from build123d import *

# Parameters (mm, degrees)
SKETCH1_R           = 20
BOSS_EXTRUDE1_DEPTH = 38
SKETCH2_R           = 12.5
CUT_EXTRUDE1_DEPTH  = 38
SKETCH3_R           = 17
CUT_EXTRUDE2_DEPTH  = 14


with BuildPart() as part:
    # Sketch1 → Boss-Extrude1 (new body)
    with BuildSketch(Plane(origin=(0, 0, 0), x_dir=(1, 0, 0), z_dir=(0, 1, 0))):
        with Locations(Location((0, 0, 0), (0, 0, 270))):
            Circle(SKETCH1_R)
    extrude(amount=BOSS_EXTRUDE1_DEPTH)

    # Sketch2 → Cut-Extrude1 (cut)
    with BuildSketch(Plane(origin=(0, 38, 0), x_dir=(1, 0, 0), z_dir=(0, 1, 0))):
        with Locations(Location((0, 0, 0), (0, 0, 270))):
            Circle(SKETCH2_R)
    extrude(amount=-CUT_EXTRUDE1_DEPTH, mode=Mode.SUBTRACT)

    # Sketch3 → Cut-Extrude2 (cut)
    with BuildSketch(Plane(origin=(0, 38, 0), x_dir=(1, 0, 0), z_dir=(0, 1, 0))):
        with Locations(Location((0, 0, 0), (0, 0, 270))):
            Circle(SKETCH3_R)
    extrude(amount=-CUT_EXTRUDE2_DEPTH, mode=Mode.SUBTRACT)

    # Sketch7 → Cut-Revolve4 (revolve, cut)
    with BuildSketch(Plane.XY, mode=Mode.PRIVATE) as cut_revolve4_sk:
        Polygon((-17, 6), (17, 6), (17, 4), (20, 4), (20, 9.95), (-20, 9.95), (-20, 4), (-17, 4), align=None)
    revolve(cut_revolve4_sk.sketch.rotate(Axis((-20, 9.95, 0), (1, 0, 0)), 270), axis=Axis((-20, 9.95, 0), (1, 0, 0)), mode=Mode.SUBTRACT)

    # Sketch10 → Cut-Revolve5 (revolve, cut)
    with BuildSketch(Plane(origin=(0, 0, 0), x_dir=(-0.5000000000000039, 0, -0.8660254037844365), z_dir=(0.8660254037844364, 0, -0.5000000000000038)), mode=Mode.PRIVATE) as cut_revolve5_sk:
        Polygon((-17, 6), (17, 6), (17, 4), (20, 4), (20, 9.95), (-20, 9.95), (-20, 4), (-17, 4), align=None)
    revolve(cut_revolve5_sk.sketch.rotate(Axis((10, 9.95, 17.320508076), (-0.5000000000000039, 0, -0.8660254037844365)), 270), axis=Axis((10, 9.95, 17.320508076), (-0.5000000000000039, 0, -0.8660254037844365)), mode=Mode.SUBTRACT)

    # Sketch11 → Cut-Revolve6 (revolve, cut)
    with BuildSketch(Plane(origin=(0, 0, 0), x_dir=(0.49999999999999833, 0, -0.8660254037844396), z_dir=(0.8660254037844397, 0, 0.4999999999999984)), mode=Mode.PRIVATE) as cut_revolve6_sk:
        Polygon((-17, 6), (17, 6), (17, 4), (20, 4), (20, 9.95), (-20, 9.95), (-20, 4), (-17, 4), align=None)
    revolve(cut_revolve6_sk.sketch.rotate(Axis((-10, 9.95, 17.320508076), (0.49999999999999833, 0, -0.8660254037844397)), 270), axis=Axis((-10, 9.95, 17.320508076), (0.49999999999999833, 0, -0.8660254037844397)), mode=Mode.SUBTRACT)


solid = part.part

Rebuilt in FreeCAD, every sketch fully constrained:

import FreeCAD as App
import Part
import Sketcher
from FreeCAD import Vector

doc = App.newDocument("Part")
params = doc.addObject("Spreadsheet::Sheet", "Params")
for row, (alias, value) in enumerate([
    ("sketch1_diameter", "40 mm"),
    ("pad1_length", "38 mm"),
    ("sketch2_diameter", "25 mm"),
    ("pocket1_length", "38 mm"),
    ("sketch3_diameter", "34 mm"),
    ("pocket2_length", "14 mm"),
    ("sketch4_width", "34 mm"),
    ("sketch4_width2", "3 mm"),
    ("sketch4_height", "2 mm"),
    ("sketch4_height2", "5.95 mm"),
    ("groove_angle", "360 deg"),
    ("sketch5_width", "34 mm"),
    ("sketch5_width2", "3 mm"),
    ("sketch5_height", "2 mm"),
    ("sketch5_height2", "5.95 mm"),
    ("groove2_angle", "360 deg"),
    ("sketch6_width", "34 mm"),
    ("sketch6_width2", "3 mm"),
    ("sketch6_height", "2 mm"),
    ("sketch6_height2", "5.95 mm"),
    ("groove3_angle", "360 deg"),
], start=1):
    params.set(f"A{row}", alias)
    params.set(f"B{row}", "=" + value)
    params.setAlias(f"B{row}", alias)

body = doc.addObject("PartDesign::Body", "Body")

# Sketch on XZ plane
sketch1 = body.newObject("Sketcher::SketchObject", "Sketch")
sketch1.AttachmentSupport = (doc.getObject("XZ_Plane"), [""])
sketch1.MapMode = "FlatFace"
sketch1.addGeometry(Part.Circle(Vector(0, 0, 0), Vector(0, 0, 1), 20), False)
sketch1.addConstraint([
    Sketcher.Constraint("Coincident", 0, 3, -1, 1),
    Sketcher.Constraint("Diameter", 0, 40.0),
])
sketch1.setExpression("Constraints[1]", "Params.sketch1_diameter")
pad1 = body.newObject("PartDesign::Pad", "Pad")
pad1.Profile = sketch1
pad1.setExpression("Length", "Params.pad1_length")
pad1.Reversed = True

# Sketch on XZ plane
sketch2 = body.newObject("Sketcher::SketchObject", "Sketch001")
sketch2.AttachmentSupport = (doc.getObject("XZ_Plane"), [""])
sketch2.MapMode = "FlatFace"
sketch2.AttachmentOffset = App.Placement(Vector(0, 0, -38), App.Rotation())
sketch2.addGeometry(Part.Circle(Vector(0, 0, 0), Vector(0, 0, 1), 12), False)
sketch2.addConstraint([
    Sketcher.Constraint("Coincident", 0, 3, -1, 1),
    Sketcher.Constraint("Diameter", 0, 25.0),
])
sketch2.setExpression("Constraints[1]", "Params.sketch2_diameter")
pocket1 = body.newObject("PartDesign::Pocket", "Pocket")
pocket1.Profile = sketch2
pocket1.setExpression("Length", "Params.pocket1_length")
pocket1.Reversed = True

# Sketch on XZ plane
sketch3 = body.newObject("Sketcher::SketchObject", "Sketch002")
sketch3.AttachmentSupport = (doc.getObject("XZ_Plane"), [""])
sketch3.MapMode = "FlatFace"
sketch3.AttachmentOffset = App.Placement(Vector(0, 0, -38), App.Rotation())
sketch3.addGeometry(Part.Circle(Vector(0, 0, 0), Vector(0, 0, 1), 17), False)
sketch3.addConstraint([
    Sketcher.Constraint("Coincident", 0, 3, -1, 1),
    Sketcher.Constraint("Diameter", 0, 34.0),
])
sketch3.setExpression("Constraints[1]", "Params.sketch3_diameter")
pocket2 = body.newObject("PartDesign::Pocket", "Pocket001")
pocket2.Profile = sketch3
pocket2.setExpression("Length", "Params.pocket2_length")
pocket2.Reversed = True

# Sketch on XY plane
sketch4 = body.newObject("Sketcher::SketchObject", "Sketch003")
sketch4.AttachmentSupport = (doc.getObject("XY_Plane"), [""])
sketch4.MapMode = "FlatFace"
sketch4.addGeometry([
    Part.LineSegment(Vector(-17, 6, 0), Vector(17, 6, 0)),  # 0
    Part.LineSegment(Vector(17, 6, 0), Vector(17, 4, 0)),  # 1
    Part.LineSegment(Vector(17, 4, 0), Vector(20, 4, 0)),  # 2
    Part.LineSegment(Vector(20, 4, 0), Vector(20, 9.9, 0)),  # 3
    Part.LineSegment(Vector(20, 9.9, 0), Vector(-20, 9.9, 0)),  # 4
    Part.LineSegment(Vector(-20, 9.9, 0), Vector(-20, 4, 0)),  # 5
    Part.LineSegment(Vector(-20, 4, 0), Vector(-17, 4, 0)),  # 6
    Part.LineSegment(Vector(-17, 4, 0), Vector(-17, 6, 0)),  # 7
], False)
sketch4.addGeometry(Part.LineSegment(Vector(-20, 9.9, 0), Vector(20, 9.9, 0)), True)  # axis
sketch4.addConstraint([
    Sketcher.Constraint("Coincident", 0, 2, 1, 1),
    Sketcher.Constraint("Coincident", 1, 2, 2, 1),
    Sketcher.Constraint("Coincident", 2, 2, 3, 1),
    Sketcher.Constraint("Coincident", 3, 2, 4, 1),
    Sketcher.Constraint("Coincident", 4, 2, 5, 1),
    Sketcher.Constraint("Coincident", 5, 2, 6, 1),
    Sketcher.Constraint("Coincident", 6, 2, 7, 1),
    Sketcher.Constraint("Coincident", 7, 2, 0, 1),
    Sketcher.Constraint("Horizontal", 0),
    Sketcher.Constraint("Vertical", 1),
    Sketcher.Constraint("Horizontal", 2),
    Sketcher.Constraint("Vertical", 3),
    Sketcher.Constraint("Horizontal", 4),
    Sketcher.Constraint("Vertical", 5),
    Sketcher.Constraint("Horizontal", 6),
    Sketcher.Constraint("Vertical", 7),
    Sketcher.Constraint("Horizontal", 8),
    Sketcher.Constraint("Coincident", 8, 1, 4, 2),
    Sketcher.Constraint("Symmetric", 2, 2, 5, 2, -2),
    Sketcher.Constraint("Vertical", 2, 2, 8, 2),
    Sketcher.Constraint("Equal", 2, 6),
    Sketcher.Constraint("DistanceX", 0, 1, 0, 2, 34.0),
    Sketcher.Constraint("DistanceX", 2, 1, 2, 2, 3.0),
    Sketcher.Constraint("DistanceY", 1, 2, 1, 1, 2.0),
    Sketcher.Constraint("DistanceY", -1, 1, 0, 2, 6.0),
    Sketcher.Constraint("DistanceY", 3, 1, 3, 2, 5.95),
])
sketch4.setExpression("Constraints[21]", "Params.sketch4_width")
sketch4.setExpression("Constraints[22]", "Params.sketch4_width2")
sketch4.setExpression("Constraints[23]", "Params.sketch4_height")
sketch4.setExpression("Constraints[25]", "Params.sketch4_height2")
groove = body.newObject("PartDesign::Groove", "Groove")
groove.Profile = sketch4
groove.ReferenceAxis = (sketch4, ["Axis0"])
groove.setExpression("Angle", "Params.groove_angle")

# Sketch on an angled plane
sketch5 = body.newObject("Sketcher::SketchObject", "Sketch004")
sketch5.Placement = App.Placement(Vector(0, 0, 0), App.Rotation(Vector(-0.5, 0, -0.866025404), Vector(0, 1, 0), Vector(0.866025404, 0, -0.5), "ZXY"))
sketch5.addGeometry([
    Part.LineSegment(Vector(-17, 6, 0), Vector(17, 6, 0)),  # 0
    Part.LineSegment(Vector(17, 6, 0), Vector(17, 4, 0)),  # 1
    Part.LineSegment(Vector(17, 4, 0), Vector(20, 4, 0)),  # 2
    Part.LineSegment(Vector(20, 4, 0), Vector(20, 10, 0)),  # 3
    Part.LineSegment(Vector(20, 10, 0), Vector(-20, 10, 0)),  # 4
    Part.LineSegment(Vector(-20, 10, 0), Vector(-20, 4, 0)),  # 5
    Part.LineSegment(Vector(-20, 4, 0), Vector(-17, 4, 0)),  # 6
    Part.LineSegment(Vector(-17, 4, 0), Vector(-17, 6, 0)),  # 7
], False)
sketch5.addGeometry(Part.LineSegment(Vector(-20, 10, 0), Vector(20, 10, 0)), True)  # axis
sketch5.addConstraint([
    Sketcher.Constraint("Coincident", 0, 2, 1, 1),
    Sketcher.Constraint("Coincident", 1, 2, 2, 1),
    Sketcher.Constraint("Coincident", 2, 2, 3, 1),
    Sketcher.Constraint("Coincident", 3, 2, 4, 1),
    Sketcher.Constraint("Coincident", 4, 2, 5, 1),
    Sketcher.Constraint("Coincident", 5, 2, 6, 1),
    Sketcher.Constraint("Coincident", 6, 2, 7, 1),
    Sketcher.Constraint("Coincident", 7, 2, 0, 1),
    Sketcher.Constraint("Horizontal", 0),
    Sketcher.Constraint("Vertical", 1),
    Sketcher.Constraint("Horizontal", 2),
    Sketcher.Constraint("Vertical", 3),
    Sketcher.Constraint("Horizontal", 4),
    Sketcher.Constraint("Vertical", 5),
    Sketcher.Constraint("Horizontal", 6),
    Sketcher.Constraint("Vertical", 7),
    Sketcher.Constraint("Horizontal", 8),
    Sketcher.Constraint("Coincident", 8, 1, 4, 2),
    Sketcher.Constraint("Symmetric", 2, 2, 5, 2, -2),
    Sketcher.Constraint("Vertical", 2, 2, 8, 2),
    Sketcher.Constraint("Equal", 2, 6),
    Sketcher.Constraint("DistanceX", 0, 1, 0, 2, 34.0),
    Sketcher.Constraint("DistanceX", 2, 1, 2, 2, 3.0),
    Sketcher.Constraint("DistanceY", 1, 2, 1, 1, 2.0),
    Sketcher.Constraint("DistanceY", -1, 1, 0, 2, 6.0),
    Sketcher.Constraint("DistanceY", 3, 1, 3, 2, 5.95),
])
sketch5.setExpression("Constraints[21]", "Params.sketch5_width")
sketch5.setExpression("Constraints[22]", "Params.sketch5_width2")
sketch5.setExpression("Constraints[23]", "Params.sketch5_height")
sketch5.setExpression("Constraints[25]", "Params.sketch5_height2")
groove2 = body.newObject("PartDesign::Groove", "Groove001")
groove2.Profile = sketch5
groove2.ReferenceAxis = (sketch5, ["Axis0"])
groove2.setExpression("Angle", "Params.groove2_angle")

# Sketch on an angled plane
sketch6 = body.newObject("Sketcher::SketchObject", "Sketch005")
sketch6.Placement = App.Placement(Vector(0, 0, 0), App.Rotation(Vector(0.5, 0, -0.866025404), Vector(0, 1, 0), Vector(0.866025404, 0, 0.5), "ZXY"))
sketch6.addGeometry([
    Part.LineSegment(Vector(-17, 6, 0), Vector(17, 6, 0)),  # 0
    Part.LineSegment(Vector(17, 6, 0), Vector(17, 4, 0)),  # 1
    Part.LineSegment(Vector(17, 4, 0), Vector(20, 4, 0)),  # 2
    Part.LineSegment(Vector(20, 4, 0), Vector(20, 10, 0)),  # 3
    Part.LineSegment(Vector(20, 10, 0), Vector(-20, 10, 0)),  # 4
    Part.LineSegment(Vector(-20, 10, 0), Vector(-20, 4, 0)),  # 5
    Part.LineSegment(Vector(-20, 4, 0), Vector(-17, 4, 0)),  # 6
    Part.LineSegment(Vector(-17, 4, 0), Vector(-17, 6, 0)),  # 7
], False)
sketch6.addGeometry(Part.LineSegment(Vector(-20, 10, 0), Vector(20, 10, 0)), True)  # axis
sketch6.addConstraint([
    Sketcher.Constraint("Coincident", 0, 2, 1, 1),
    Sketcher.Constraint("Coincident", 1, 2, 2, 1),
    Sketcher.Constraint("Coincident", 2, 2, 3, 1),
    Sketcher.Constraint("Coincident", 3, 2, 4, 1),
    Sketcher.Constraint("Coincident", 4, 2, 5, 1),
    Sketcher.Constraint("Coincident", 5, 2, 6, 1),
    Sketcher.Constraint("Coincident", 6, 2, 7, 1),
    Sketcher.Constraint("Coincident", 7, 2, 0, 1),
    Sketcher.Constraint("Horizontal", 0),
    Sketcher.Constraint("Vertical", 1),
    Sketcher.Constraint("Horizontal", 2),
    Sketcher.Constraint("Vertical", 3),
    Sketcher.Constraint("Horizontal", 4),
    Sketcher.Constraint("Vertical", 5),
    Sketcher.Constraint("Horizontal", 6),
    Sketcher.Constraint("Vertical", 7),
    Sketcher.Constraint("Horizontal", 8),
    Sketcher.Constraint("Coincident", 8, 1, 4, 2),
    Sketcher.Constraint("Symmetric", 2, 2, 5, 2, -2),
    Sketcher.Constraint("Vertical", 2, 2, 8, 2),
    Sketcher.Constraint("Equal", 2, 6),
    Sketcher.Constraint("DistanceX", 0, 1, 0, 2, 34.0),
    Sketcher.Constraint("DistanceX", 2, 1, 2, 2, 3.0),
    Sketcher.Constraint("DistanceY", 1, 2, 1, 1, 2.0),
    Sketcher.Constraint("DistanceY", -1, 1, 0, 2, 6.0),
    Sketcher.Constraint("DistanceY", 3, 1, 3, 2, 5.95),
])
sketch6.setExpression("Constraints[21]", "Params.sketch6_width")
sketch6.setExpression("Constraints[22]", "Params.sketch6_width2")
sketch6.setExpression("Constraints[23]", "Params.sketch6_height")
sketch6.setExpression("Constraints[25]", "Params.sketch6_height2")
groove3 = body.newObject("PartDesign::Groove", "Groove002")
groove3.Profile = sketch6
groove3.ReferenceAxis = (sketch6, ["Axis0"])
groove3.setExpression("Angle", "Params.groove3_angle")

doc.recompute()
